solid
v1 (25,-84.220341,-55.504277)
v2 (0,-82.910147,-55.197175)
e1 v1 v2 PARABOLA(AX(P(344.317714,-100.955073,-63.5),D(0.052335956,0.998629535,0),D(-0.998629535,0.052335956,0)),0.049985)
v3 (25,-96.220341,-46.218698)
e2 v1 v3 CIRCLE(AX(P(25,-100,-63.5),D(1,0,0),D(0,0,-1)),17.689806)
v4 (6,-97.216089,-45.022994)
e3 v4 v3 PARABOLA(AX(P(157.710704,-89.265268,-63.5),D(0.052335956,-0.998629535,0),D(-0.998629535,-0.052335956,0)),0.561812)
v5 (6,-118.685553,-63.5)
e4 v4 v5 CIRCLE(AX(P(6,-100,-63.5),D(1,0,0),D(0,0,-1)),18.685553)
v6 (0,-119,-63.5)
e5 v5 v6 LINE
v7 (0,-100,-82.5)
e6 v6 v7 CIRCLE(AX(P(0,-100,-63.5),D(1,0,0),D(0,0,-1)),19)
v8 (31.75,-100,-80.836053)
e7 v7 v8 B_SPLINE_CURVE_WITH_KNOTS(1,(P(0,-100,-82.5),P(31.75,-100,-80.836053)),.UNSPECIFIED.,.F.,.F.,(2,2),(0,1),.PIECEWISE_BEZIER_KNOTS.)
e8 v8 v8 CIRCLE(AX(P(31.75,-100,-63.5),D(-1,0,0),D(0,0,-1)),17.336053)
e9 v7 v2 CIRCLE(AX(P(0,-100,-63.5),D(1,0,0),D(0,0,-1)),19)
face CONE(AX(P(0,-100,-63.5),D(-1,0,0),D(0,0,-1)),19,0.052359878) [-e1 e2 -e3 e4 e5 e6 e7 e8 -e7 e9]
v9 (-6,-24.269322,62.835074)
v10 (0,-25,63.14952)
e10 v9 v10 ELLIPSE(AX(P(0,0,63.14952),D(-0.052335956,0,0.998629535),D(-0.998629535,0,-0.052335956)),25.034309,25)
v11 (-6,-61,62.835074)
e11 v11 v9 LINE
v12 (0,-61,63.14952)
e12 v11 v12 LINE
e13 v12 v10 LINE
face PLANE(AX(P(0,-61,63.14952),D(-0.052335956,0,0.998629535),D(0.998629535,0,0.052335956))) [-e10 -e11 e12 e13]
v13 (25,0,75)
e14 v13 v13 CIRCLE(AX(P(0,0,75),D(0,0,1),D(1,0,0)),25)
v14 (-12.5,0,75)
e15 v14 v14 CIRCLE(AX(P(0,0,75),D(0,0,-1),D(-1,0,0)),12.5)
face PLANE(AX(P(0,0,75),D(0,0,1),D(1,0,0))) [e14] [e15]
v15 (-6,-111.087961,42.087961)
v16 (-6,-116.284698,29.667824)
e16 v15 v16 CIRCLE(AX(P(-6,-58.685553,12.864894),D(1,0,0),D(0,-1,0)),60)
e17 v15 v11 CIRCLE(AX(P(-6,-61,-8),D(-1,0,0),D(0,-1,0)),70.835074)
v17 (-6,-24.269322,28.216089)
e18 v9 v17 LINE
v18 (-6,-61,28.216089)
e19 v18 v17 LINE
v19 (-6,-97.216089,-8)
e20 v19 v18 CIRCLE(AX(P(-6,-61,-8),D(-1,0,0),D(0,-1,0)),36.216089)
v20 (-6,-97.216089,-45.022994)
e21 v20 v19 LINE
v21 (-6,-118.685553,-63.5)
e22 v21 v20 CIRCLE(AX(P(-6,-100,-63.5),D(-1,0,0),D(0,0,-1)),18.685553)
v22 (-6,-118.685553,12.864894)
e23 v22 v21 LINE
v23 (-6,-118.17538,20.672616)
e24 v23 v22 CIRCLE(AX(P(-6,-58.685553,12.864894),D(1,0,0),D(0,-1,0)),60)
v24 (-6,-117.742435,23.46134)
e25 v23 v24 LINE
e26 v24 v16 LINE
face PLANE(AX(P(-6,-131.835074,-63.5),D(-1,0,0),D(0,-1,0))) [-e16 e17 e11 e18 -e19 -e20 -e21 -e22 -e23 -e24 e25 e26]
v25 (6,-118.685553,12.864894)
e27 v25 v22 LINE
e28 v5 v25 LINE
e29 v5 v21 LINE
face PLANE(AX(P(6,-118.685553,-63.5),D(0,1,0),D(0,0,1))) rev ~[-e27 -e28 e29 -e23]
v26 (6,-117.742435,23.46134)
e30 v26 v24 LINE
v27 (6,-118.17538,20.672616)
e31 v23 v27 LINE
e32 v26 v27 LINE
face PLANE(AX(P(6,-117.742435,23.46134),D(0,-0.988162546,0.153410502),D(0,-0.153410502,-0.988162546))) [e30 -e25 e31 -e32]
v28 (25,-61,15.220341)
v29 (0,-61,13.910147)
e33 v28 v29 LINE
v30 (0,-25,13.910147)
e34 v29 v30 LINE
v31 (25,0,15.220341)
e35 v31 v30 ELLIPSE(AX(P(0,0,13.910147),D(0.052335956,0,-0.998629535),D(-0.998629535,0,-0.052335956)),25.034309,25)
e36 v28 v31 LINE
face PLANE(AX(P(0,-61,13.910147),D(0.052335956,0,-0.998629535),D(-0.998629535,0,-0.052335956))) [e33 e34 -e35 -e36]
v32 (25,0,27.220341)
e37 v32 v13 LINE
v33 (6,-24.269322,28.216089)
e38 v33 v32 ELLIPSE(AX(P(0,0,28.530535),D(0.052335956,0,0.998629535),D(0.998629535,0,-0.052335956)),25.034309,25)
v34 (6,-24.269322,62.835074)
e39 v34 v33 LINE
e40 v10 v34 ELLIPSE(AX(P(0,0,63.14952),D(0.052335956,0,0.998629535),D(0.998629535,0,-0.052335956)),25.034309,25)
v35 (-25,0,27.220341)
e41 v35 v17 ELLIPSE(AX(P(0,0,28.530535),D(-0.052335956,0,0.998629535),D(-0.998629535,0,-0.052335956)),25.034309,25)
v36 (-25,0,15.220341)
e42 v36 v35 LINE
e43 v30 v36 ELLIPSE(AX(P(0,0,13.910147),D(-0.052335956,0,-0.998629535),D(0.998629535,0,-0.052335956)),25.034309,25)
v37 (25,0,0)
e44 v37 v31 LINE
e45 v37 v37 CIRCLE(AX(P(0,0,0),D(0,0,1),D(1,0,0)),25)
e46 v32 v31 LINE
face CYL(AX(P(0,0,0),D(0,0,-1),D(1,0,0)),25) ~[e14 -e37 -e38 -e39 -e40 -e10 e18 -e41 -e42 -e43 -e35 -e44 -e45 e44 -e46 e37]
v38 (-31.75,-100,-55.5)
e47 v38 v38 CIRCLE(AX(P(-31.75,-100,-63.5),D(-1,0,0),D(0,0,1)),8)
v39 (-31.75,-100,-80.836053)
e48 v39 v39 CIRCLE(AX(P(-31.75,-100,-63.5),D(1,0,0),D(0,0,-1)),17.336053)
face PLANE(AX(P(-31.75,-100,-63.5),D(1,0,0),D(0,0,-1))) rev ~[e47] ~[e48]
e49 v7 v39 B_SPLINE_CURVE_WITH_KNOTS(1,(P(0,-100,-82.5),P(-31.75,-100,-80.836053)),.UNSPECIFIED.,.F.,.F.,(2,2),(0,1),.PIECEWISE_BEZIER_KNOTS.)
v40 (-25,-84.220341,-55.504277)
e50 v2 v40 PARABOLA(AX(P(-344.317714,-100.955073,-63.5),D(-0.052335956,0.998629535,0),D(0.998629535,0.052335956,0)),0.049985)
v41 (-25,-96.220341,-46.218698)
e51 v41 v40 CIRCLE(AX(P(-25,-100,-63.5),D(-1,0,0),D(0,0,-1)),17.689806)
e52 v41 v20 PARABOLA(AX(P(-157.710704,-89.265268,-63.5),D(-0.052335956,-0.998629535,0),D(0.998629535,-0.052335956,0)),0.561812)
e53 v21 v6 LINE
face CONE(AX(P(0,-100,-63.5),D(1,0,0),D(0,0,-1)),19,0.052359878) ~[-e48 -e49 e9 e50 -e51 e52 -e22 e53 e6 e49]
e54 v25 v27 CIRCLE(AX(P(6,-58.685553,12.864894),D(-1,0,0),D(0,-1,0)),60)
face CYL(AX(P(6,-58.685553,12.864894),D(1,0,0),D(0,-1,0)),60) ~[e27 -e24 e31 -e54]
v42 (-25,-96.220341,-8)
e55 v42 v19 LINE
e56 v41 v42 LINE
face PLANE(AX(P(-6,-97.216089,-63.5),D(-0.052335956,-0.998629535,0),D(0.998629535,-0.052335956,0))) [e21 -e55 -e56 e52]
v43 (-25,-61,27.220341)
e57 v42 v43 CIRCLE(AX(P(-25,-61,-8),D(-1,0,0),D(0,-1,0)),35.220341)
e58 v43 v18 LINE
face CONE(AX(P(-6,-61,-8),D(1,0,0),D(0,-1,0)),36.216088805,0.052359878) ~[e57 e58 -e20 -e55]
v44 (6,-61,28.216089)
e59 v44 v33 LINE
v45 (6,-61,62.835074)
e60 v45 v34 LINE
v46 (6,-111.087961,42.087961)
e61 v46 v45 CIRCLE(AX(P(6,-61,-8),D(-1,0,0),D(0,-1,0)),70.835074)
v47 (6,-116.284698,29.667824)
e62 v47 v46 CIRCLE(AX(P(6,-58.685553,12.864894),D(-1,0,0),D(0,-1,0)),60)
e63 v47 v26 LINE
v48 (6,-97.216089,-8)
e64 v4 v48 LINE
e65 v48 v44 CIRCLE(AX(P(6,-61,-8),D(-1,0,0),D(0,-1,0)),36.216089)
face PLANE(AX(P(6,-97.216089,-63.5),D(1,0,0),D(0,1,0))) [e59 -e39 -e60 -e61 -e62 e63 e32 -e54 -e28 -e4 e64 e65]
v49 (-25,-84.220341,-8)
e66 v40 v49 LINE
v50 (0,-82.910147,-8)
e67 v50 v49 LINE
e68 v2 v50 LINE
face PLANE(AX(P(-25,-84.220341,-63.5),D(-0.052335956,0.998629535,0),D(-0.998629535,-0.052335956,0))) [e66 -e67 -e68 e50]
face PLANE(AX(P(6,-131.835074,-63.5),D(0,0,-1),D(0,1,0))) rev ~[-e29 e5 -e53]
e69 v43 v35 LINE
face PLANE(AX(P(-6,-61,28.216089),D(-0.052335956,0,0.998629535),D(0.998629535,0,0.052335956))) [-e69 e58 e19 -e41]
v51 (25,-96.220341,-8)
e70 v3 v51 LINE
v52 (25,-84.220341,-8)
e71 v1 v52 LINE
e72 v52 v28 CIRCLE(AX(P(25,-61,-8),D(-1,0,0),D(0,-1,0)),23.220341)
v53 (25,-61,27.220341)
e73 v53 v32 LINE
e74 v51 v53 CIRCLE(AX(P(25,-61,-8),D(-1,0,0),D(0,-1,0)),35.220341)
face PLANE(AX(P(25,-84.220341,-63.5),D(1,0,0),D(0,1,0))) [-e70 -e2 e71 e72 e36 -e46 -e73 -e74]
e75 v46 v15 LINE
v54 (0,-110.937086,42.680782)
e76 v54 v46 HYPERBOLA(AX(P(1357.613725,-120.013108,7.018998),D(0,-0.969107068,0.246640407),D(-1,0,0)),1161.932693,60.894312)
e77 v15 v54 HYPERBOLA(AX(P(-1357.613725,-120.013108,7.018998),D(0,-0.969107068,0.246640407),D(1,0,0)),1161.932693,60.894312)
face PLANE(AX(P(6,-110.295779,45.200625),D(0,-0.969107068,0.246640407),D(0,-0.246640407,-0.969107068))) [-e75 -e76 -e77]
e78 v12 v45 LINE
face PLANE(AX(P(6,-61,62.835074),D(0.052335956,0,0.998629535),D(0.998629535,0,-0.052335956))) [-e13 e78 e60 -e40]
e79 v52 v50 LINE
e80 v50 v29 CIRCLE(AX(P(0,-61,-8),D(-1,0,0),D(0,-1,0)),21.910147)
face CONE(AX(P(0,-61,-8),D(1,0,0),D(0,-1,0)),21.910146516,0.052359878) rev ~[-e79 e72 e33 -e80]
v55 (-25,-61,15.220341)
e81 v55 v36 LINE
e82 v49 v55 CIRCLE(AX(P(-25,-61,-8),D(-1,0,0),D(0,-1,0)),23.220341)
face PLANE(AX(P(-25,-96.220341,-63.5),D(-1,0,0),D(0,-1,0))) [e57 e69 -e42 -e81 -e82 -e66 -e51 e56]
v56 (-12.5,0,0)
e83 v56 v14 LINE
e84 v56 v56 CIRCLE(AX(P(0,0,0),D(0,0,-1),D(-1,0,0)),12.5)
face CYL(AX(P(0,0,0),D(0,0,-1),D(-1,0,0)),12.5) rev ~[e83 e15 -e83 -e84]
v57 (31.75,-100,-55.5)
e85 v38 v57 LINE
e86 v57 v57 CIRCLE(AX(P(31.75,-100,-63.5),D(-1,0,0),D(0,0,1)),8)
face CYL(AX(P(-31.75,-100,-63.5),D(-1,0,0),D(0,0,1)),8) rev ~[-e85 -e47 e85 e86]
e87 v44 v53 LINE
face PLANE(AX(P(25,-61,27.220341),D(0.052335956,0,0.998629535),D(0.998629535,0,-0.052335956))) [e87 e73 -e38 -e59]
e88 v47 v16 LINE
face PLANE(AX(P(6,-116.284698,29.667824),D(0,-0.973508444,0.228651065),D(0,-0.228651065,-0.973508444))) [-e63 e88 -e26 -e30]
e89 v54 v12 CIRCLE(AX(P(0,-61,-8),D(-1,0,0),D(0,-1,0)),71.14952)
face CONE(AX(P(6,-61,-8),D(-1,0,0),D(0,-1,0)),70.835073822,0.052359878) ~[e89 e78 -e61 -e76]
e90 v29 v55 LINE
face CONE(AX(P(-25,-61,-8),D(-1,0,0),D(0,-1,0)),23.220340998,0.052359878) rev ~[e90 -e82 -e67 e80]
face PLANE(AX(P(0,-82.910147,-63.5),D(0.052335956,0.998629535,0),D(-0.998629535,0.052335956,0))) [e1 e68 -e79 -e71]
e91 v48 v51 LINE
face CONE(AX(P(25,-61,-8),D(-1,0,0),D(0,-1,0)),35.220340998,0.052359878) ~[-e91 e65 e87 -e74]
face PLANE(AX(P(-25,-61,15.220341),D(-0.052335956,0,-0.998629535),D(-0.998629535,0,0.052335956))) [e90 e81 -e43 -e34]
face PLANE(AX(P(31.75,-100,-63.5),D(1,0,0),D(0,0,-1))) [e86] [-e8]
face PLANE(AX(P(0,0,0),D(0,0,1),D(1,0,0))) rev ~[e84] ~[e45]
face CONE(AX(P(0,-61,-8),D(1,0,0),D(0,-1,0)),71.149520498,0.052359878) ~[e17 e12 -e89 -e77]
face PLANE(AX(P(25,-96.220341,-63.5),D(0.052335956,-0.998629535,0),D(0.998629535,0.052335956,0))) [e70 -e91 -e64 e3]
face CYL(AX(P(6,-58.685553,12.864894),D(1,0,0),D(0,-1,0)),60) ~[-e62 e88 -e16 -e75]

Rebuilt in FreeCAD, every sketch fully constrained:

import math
import FreeCAD as App
import Part
import Sketcher
from FreeCAD import Vector
Q = App.Units.Quantity

doc = App.newDocument("Part")
params = doc.addObject("Spreadsheet::Sheet", "Params")
for row, (alias, value) in enumerate([
    ("sketch1_diameter", "50 mm"),
    ("pad1_length", "75 mm"),
    ("sketch2_diameter", "38 mm"),
    ("pad2_length", "31.75 mm"),
    ("pad2_taper", "-3 deg"),
    ("sketch3_diameter", "38 mm"),
    ("pad3_length", "31.75 mm"),
    ("pad3_taper", "-3 deg"),
    ("sketch4_height", "12 mm"),
    ("sketch5_radius", "20 mm"),
    ("sketch5_width", "61 mm"),
    ("sketch5_height", "55.5 mm"),
    ("sketch6_radius", "60 mm"),
    ("sketch6_height", "55.5 mm"),
    ("sketch7_radius", "60 mm"),
    ("sketch8_diameter", "25 mm"),
    ("sketch9_diameter", "16 mm"),
], start=1):
    params.set(f"A{row}", alias)
    params.set(f"B{row}", "=" + value)
    params.setAlias(f"B{row}", alias)

body = doc.addObject("PartDesign::Body", "Body")

# Sketch on XY plane
sketch1 = body.newObject("Sketcher::SketchObject", "Sketch")
sketch1.AttachmentSupport = (doc.getObject("XY_Plane"), [""])
sketch1.MapMode = "FlatFace"
sketch1.addGeometry(Part.Circle(Vector(0, 0, 0), Vector(0, 0, 1), 25), False)
sketch1.addConstraint([
    Sketcher.Constraint("Coincident", 0, 3, -1, 1),
    Sketcher.Constraint("Diameter", 0, Q("50 mm")),
])
sketch1.setExpression("Constraints[1]", "Params.sketch1_diameter")
pad1 = body.newObject("PartDesign::Pad", "Pad")
pad1.Profile = sketch1
pad1.setExpression("Length", "Params.pad1_length")
body2 = doc.addObject("PartDesign::Body", "Body001")

# Sketch on YZ plane
sketch2 = body2.newObject("Sketcher::SketchObject", "Sketch001")
sketch2.AttachmentSupport = (doc.getObject("YZ_Plane001"), [""])
sketch2.MapMode = "FlatFace"
sketch2.addGeometry(Part.Circle(Vector(-100, -63.5, 0), Vector(0, 0, 1), 19), False)
sketch2.addConstraint([
    Sketcher.Constraint("Diameter", 0, Q("38 mm")),
    Sketcher.Constraint("DistanceX", 0, 3, -1, 1, Q("100 mm")),
    Sketcher.Constraint("DistanceY", 0, 3, -1, 1, Q("63.5 mm")),
])
sketch2.setExpression("Constraints[0]", "Params.sketch2_diameter")
pad2 = body2.newObject("PartDesign::Pad", "Pad001")
pad2.Profile = sketch2
pad2.setExpression("Length", "Params.pad2_length")
pad2.setExpression("TaperAngle", "Params.pad2_taper")

# Sketch on YZ plane
sketch3 = body2.newObject("Sketcher::SketchObject", "Sketch002")
sketch3.AttachmentSupport = (doc.getObject("YZ_Plane001"), [""])
sketch3.MapMode = "FlatFace"
sketch3.addGeometry(Part.Circle(Vector(-100, -63.5, 0), Vector(0, 0, 1), 19), False)
sketch3.addConstraint([
    Sketcher.Constraint("Diameter", 0, Q("38 mm")),
    Sketcher.Constraint("DistanceX", 0, 3, -1, 1, Q("100 mm")),
    Sketcher.Constraint("DistanceY", 0, 3, -1, 1, Q("63.5 mm")),
])
sketch3.setExpression("Constraints[0]", "Params.sketch3_diameter")
pad3 = body2.newObject("PartDesign::Pad", "Pad002")
pad3.Profile = sketch3
pad3.setExpression("Length", "Params.pad3_length")
pad3.Reversed = True
pad3.setExpression("TaperAngle", "Params.pad3_taper")
body.AllowCompound = True
doc.recompute()

boolean = body.newObject("PartDesign::Boolean", "Boolean")
boolean.Type = "Fuse"
boolean.addObjects([body2])

# Sketch on XZ plane
sketch4 = body.newObject("Sketcher::SketchObject", "Sketch003")
sketch4.AttachmentSupport = (doc.getObject("XZ_Plane"), [""])
sketch4.MapMode = "FlatFace"
sketch4.addGeometry([
    Part.LineSegment(Vector(-6, 62.835074, 0), Vector(0, 63.14952, 0)),  # 0
    Part.LineSegment(Vector(0, 63.14952, 0), Vector(6, 62.835074, 0)),  # 1
    Part.LineSegment(Vector(6, 62.835074, 0), Vector(6, 28.216089, 0)),  # 2
    Part.LineSegment(Vector(6, 28.216089, 0), Vector(25, 27.220341, 0)),  # 3
    Part.LineSegment(Vector(25, 27.220341, 0), Vector(25, 15.220341, 0)),  # 4
    Part.LineSegment(Vector(25, 15.220341, 0), Vector(0, 13.910147, 0)),  # 5
    Part.LineSegment(Vector(0, 13.910147, 0), Vector(-25, 15.220341, 0)),  # 6
    Part.LineSegment(Vector(-25, 15.220341, 0), Vector(-25, 27.220341, 0)),  # 7
    Part.LineSegment(Vector(-25, 27.220341, 0), Vector(-6, 28.216089, 0)),  # 8
    Part.LineSegment(Vector(-6, 28.216089, 0), Vector(-6, 62.835074, 0)),  # 9
], False)
sketch4.addConstraint([
    Sketcher.Constraint("Coincident", 0, 2, 1, 1),
    Sketcher.Constraint("Coincident", 1, 2, 2, 1),
    Sketcher.Constraint("Coincident", 2, 2, 3, 1),
    Sketcher.Constraint("Coincident", 3, 2, 4, 1),
    Sketcher.Constraint("Coincident", 4, 2, 5, 1),
    Sketcher.Constraint("Coincident", 5, 2, 6, 1),
    Sketcher.Constraint("Coincident", 6, 2, 7, 1),
    Sketcher.Constraint("Coincident", 7, 2, 8, 1),
    Sketcher.Constraint("Coincident", 8, 2, 9, 1),
    Sketcher.Constraint("Coincident", 9, 2, 0, 1),
    Sketcher.Constraint("Vertical", 2),
    Sketcher.Constraint("Vertical", 4),
    Sketcher.Constraint("Vertical", 7),
    Sketcher.Constraint("Vertical", 9),
    Sketcher.Constraint("Symmetric", 4, 2, 6, 2, -2),
    Sketcher.Constraint("Symmetric", 2, 2, 8, 2, -2),
    Sketcher.Constraint("PointOnObject", 0, 2, -2),
    Sketcher.Constraint("PointOnObject", 5, 2, -2),
    Sketcher.Constraint("Parallel", 1, 3),
    Sketcher.Constraint("Parallel", 0, 5),
    Sketcher.Constraint("Parallel", 3, 6),
    Sketcher.Constraint("Parallel", 5, 8),
    Sketcher.Constraint("DistanceY", 4, 2, 4, 1, Q("12 mm")),
    Sketcher.Constraint("Angle", 0, Q("3 deg")),
    Sketcher.Constraint("DistanceX", -1, 1, 1, 2, Q("6 mm")),
    Sketcher.Constraint("DistanceX", -1, 1, 3, 2, Q("25 mm")),
    Sketcher.Constraint("DistanceY", 2, 2, 2, 1, Q("34.618985 mm")),
    Sketcher.Constraint("DistanceY", -1, 1, 0, 2, Q("63.14952 mm")),
])
sketch4.setExpression("Constraints[22]", "Params.sketch4_height")

# Sketch on YZ plane
sketch5 = body.newObject("Sketcher::SketchObject", "Sketch004")
sketch5.AttachmentSupport = (doc.getObject("YZ_Plane"), [""])
sketch5.MapMode = "FlatFace"
sketch5.addGeometry([
    Part.LineSegment(Vector(-81, -63.5, 0), Vector(-81, -8, 0)),
    Part.ArcOfCircle(Part.Circle(Vector(-61, -8, 0), Vector(0, 0, 1), 20), math.radians(90), math.radians(180)),
    Part.LineSegment(Vector(-61, 12, 0), Vector(0, 12, 0)),
], False)
sketch5.addConstraint([
    Sketcher.Constraint("Tangent", 0, 2, 1, 2),
    Sketcher.Constraint("Tangent", 1, 1, 2, 1),
    Sketcher.Constraint("Vertical", 0),
    Sketcher.Constraint("Horizontal", 2),
    Sketcher.Constraint("PointOnObject", 2, 2, -2),
    Sketcher.Constraint("Radius", 1, Q("20 mm")),
    Sketcher.Constraint("DistanceX", 2, 1, 2, 2, Q("61 mm")),
    Sketcher.Constraint("DistanceY", 0, 1, 0, 2, Q("55.5 mm")),
    Sketcher.Constraint("DistanceY", 1, 3, -1, 1, Q("8 mm")),
])
sketch5.setExpression("Constraints[5]", "Params.sketch5_radius")
sketch5.setExpression("Constraints[6]", "Params.sketch5_width")
sketch5.setExpression("Constraints[7]", "Params.sketch5_height")
doc.recompute()

additivepipe = body.newObject("PartDesign::AdditivePipe", "AdditivePipe")
additivepipe.Profile = sketch4
additivepipe.Spine = (sketch5, ["Edge1", "Edge2", "Edge3"])

# Sketch on YZ plane
sketch6 = body.newObject("Sketcher::SketchObject", "Sketch005")
sketch6.AttachmentSupport = (doc.getObject("YZ_Plane"), [""])
sketch6.MapMode = "FlatFace"
sketch6.AttachmentOffset = App.Placement(Vector(0, 0, 6), App.Rotation())
sketch6.addGeometry([
    Part.LineSegment(Vector(-118.685553, -63.5, 0), Vector(-118.685553, 12.864894, 0)),  # 0
    Part.ArcOfCircle(Part.Circle(Vector(-58.685553, 12.864894, 0), Vector(0, 0, 1), 60), math.radians(150.853056), math.radians(180)),  # 1
    Part.ArcOfCircle(Part.Circle(Vector(-61, -8, 0), Vector(0, 0, 1), 70.835074), math.radians(135), math.radians(180)),  # 2
    Part.LineSegment(Vector(-131.835074, -8, 0), Vector(-131.835074, -63.5, 0)),  # 3
    Part.LineSegment(Vector(-131.835074, -63.5, 0), Vector(-118.685553, -63.5, 0)),  # 4
], False)
sketch6.addConstraint([
    Sketcher.Constraint("Tangent", 0, 2, 1, 2),
    Sketcher.Constraint("Coincident", 1, 1, 2, 1),
    Sketcher.Constraint("Tangent", 2, 2, 3, 1),
    Sketcher.Constraint("Coincident", 3, 2, 4, 1),
    Sketcher.Constraint("Coincident", 4, 2, 0, 1),
    Sketcher.Constraint("Vertical", 0),
    Sketcher.Constraint("Vertical", 3),
    Sketcher.Constraint("Horizontal", 4),
    Sketcher.Constraint("Radius", 1, Q("60 mm")),
    Sketcher.Constraint("DistanceY", 3, 2, 3, 1, Q("55.5 mm")),
    Sketcher.Constraint("DistanceX", 2, 3, -1, 1, Q("61 mm")),
    Sketcher.Constraint("DistanceY", 2, 3, -1, 1, Q("8 mm")),
    Sketcher.Constraint("Radius", 2, Q("70.835074 mm")),
    Sketcher.Constraint("DistanceX", 4, 1, 4, 2, Q("13.14952 mm")),
    Sketcher.Constraint("DistanceY", 0, 1, 0, 2, Q("76.364894 mm")),
])
sketch6.setExpression("Constraints[8]", "Params.sketch6_radius")
sketch6.setExpression("Constraints[9]", "Params.sketch6_height")
pocket1 = body.newObject("PartDesign::Pocket", "Pocket")
pocket1.Profile = sketch6
pocket1.Type = "ThroughAll"

# Sketch on YZ plane
sketch7 = body.newObject("Sketcher::SketchObject", "Sketch006")
sketch7.AttachmentSupport = (doc.getObject("YZ_Plane"), [""])
sketch7.MapMode = "FlatFace"
sketch7.AttachmentOffset = App.Placement(Vector(0, 0, 6), App.Rotation())
sketch7.addGeometry([
    Part.LineSegment(Vector(-111.087961, 42.087961, 0), Vector(-110.295779, 45.200625, 0)),  # 0
    Part.LineSegment(Vector(-110.295779, 45.200625, 0), Vector(-116.7551, 39.716645, 0)),  # 1
    Part.LineSegment(Vector(-116.7551, 39.716645, 0), Vector(-135.750207, 4.743995, 0)),  # 2
    Part.LineSegment(Vector(-135.750207, 4.743995, 0), Vector(-135.750207, -72.32814, 0)),  # 3
    Part.LineSegment(Vector(-135.750207, -72.32814, 0), Vector(-129.97004, -71.018241, 0)),  # 4
    Part.LineSegment(Vector(-129.97004, -71.018241, 0), Vector(-128.347312, -44.847813, 0)),  # 5
    Part.LineSegment(Vector(-128.347312, -44.847813, 0), Vector(-117.742435, 23.46134, 0)),  # 6
    Part.LineSegment(Vector(-117.742435, 23.46134, 0), Vector(-116.284698, 29.667824, 0)),  # 7
    Part.ArcOfCircle(Part.Circle(Vector(-58.685553, 12.864894, 0), Vector(0, 0, 1), 60), math.radians(150.853056), math.radians(163.73688)),  # 8
], False)
sketch7.addConstraint([
    Sketcher.Constraint("Coincident", 0, 2, 1, 1),
    Sketcher.Constraint("Coincident", 1, 2, 2, 1),
    Sketcher.Constraint("Coincident", 2, 2, 3, 1),
    Sketcher.Constraint("Coincident", 3, 2, 4, 1),
    Sketcher.Constraint("Coincident", 4, 2, 5, 1),
    Sketcher.Constraint("Coincident", 5, 2, 6, 1),
    Sketcher.Constraint("Coincident", 6, 2, 7, 1),
    Sketcher.Constraint("Coincident", 7, 2, 8, 2),
    Sketcher.Constraint("Coincident", 8, 1, 0, 1),
    Sketcher.Constraint("Vertical", 3),
    Sketcher.Constraint("Radius", 8, Q("60 mm")),
    Sketcher.Constraint("DistanceX", 1, 2, -1, 1, Q("116.7551 mm")),
    Sketcher.Constraint("DistanceX", 7, 2, -1, 1, Q("116.284698 mm")),
    Sketcher.Constraint("DistanceY", 2, 2, 8, 3, Q("8.120898 mm")),
    Sketcher.Constraint("DistanceY", 3, 2, 4, 2, Q("1.309899 mm")),
    Sketcher.Constraint("DistanceY", 7, 2, 0, 2, Q("15.532801 mm")),
    Sketcher.Constraint("Distance", 0, Q("3.211889 mm")),
    Sketcher.Constraint("Distance", 5, Q("26.220689 mm")),
    Sketcher.Constraint("DistanceY", 3, 2, 3, 1, Q("77.072135 mm")),
    Sketcher.Constraint("DistanceX", 0, 2, -1, 1, Q("110.295779 mm")),
    Sketcher.Constraint("DistanceY", 3, 2, -1, 1, Q("72.32814 mm")),
    Sketcher.Constraint("DistanceX", 4, 2, -1, 1, Q("129.97004 mm")),
    Sketcher.Constraint("DistanceX", 5, 2, -1, 1, Q("128.347312 mm")),
    Sketcher.Constraint("DistanceY", -1, 1, 6, 2, Q("23.46134 mm")),
    Sketcher.Constraint("DistanceX", 8, 1, -1, 1, Q("111.087961 mm")),
    Sketcher.Constraint("DistanceY", 1, 2, 0, 2, Q("5.48398 mm")),
    Sketcher.Constraint("DistanceX", 2, 2, 6, 2, Q("18.007771 mm")),
    Sketcher.Constraint("DistanceX", 2, 2, 7, 2, Q("19.465508 mm")),
])
sketch7.setExpression("Constraints[10]", "Params.sketch7_radius")
pocket2 = body.newObject("PartDesign::Pocket", "Pocket001")
pocket2.Profile = sketch7
pocket2.Type = "ThroughAll"

# Sketch on XY plane
sketch8 = body.newObject("Sketcher::SketchObject", "Sketch007")
sketch8.AttachmentSupport = (doc.getObject("XY_Plane"), [""])
sketch8.MapMode = "FlatFace"
sketch8.addGeometry(Part.Circle(Vector(0, 0, 0), Vector(0, 0, 1), 12.5), False)
sketch8.addConstraint([
    Sketcher.Constraint("Coincident", 0, 3, -1, 1),
    Sketcher.Constraint("Diameter", 0, Q("25 mm")),
])
sketch8.setExpression("Constraints[1]", "Params.sketch8_diameter")
pocket3 = body.newObject("PartDesign::Pocket", "Pocket002")
pocket3.Profile = sketch8
pocket3.Type = "ThroughAll"
pocket3.Reversed = True

# Sketch on YZ plane
sketch9 = body.newObject("Sketcher::SketchObject", "Sketch008")
sketch9.AttachmentSupport = (doc.getObject("YZ_Plane"), [""])
sketch9.MapMode = "FlatFace"
sketch9.AttachmentOffset = App.Placement(Vector(0, 0, -31.75), App.Rotation())
sketch9.addGeometry(Part.Circle(Vector(-100, -63.5, 0), Vector(0, 0, 1), 8), False)
sketch9.addConstraint([
    Sketcher.Constraint("Diameter", 0, Q("16 mm")),
    Sketcher.Constraint("DistanceX", 0, 3, -1, 1, Q("100 mm")),
    Sketcher.Constraint("DistanceY", 0, 3, -1, 1, Q("63.5 mm")),
])
sketch9.setExpression("Constraints[0]", "Params.sketch9_diameter")
pocket4 = body.newObject("PartDesign::Pocket", "Pocket003")
pocket4.Profile = sketch9
pocket4.Type = "ThroughAll"
pocket4.Reversed = True

doc.recompute()
